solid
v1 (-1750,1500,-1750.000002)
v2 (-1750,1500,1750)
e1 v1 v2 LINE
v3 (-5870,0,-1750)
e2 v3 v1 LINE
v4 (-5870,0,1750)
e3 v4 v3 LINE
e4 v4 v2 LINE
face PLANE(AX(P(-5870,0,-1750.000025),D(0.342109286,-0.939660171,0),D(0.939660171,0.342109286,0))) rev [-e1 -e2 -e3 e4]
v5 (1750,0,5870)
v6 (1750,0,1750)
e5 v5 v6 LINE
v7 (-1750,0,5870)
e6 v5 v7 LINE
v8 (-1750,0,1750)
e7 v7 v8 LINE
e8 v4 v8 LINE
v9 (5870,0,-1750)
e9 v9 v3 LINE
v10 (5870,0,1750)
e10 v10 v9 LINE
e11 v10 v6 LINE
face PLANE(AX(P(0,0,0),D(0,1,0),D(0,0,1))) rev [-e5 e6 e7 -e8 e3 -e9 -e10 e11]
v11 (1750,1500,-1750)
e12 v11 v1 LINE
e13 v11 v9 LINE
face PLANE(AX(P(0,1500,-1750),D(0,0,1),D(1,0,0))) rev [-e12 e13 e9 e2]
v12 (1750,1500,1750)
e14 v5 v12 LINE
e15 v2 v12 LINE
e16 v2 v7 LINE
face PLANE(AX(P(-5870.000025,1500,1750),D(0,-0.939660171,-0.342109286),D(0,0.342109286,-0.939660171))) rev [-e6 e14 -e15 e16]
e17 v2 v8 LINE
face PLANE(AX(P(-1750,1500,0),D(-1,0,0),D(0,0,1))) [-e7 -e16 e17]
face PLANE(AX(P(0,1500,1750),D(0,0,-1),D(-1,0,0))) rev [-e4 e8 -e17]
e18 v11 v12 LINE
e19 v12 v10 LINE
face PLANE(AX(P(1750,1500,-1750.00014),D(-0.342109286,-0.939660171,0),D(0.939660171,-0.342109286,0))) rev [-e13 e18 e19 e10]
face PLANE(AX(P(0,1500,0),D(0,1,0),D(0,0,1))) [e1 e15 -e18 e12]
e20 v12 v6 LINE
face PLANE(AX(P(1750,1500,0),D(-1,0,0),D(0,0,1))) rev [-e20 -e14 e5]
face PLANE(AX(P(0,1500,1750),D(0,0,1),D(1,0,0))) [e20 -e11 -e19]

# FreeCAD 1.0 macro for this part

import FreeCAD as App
import Part
import Sketcher
from FreeCAD import Vector


def add_polygon(sketch, points):
    """Adds a closed chain of lines whose ends are joined by coincident constraints."""
    first, n = sketch.GeometryCount, len(points)
    for a, b in zip(points, points[1:] + points[:1]):
        sketch.addGeometry(Part.LineSegment(App.Vector(*a, 0), App.Vector(*b, 0)), False)
    for i in range(n):
        sketch.addConstraint(Sketcher.Constraint("Coincident", first + i, 2, first + (i + 1) % n, 1))

doc = App.newDocument("Part")
body = doc.addObject("PartDesign::Body", "Body")

# Sketch on XZ plane
sketch1 = doc.addObject("Sketcher::SketchObject", "Sketch")
body.addObject(sketch1)
sketch1.AttachmentSupport = (doc.XZ_Plane, [""])
sketch1.MapMode = "FlatFace"
add_polygon(sketch1, [(-1750, -1750), (-1750, 1750), (1750, 1750), (1750, -1750)])  # lines 0-3
sketch1.addConstraint([
    Sketcher.Constraint("Vertical", 0),
    Sketcher.Constraint("Horizontal", 1),
    Sketcher.Constraint("Vertical", 2),
    Sketcher.Constraint("Horizontal", 3),
    Sketcher.Constraint("Symmetric", 0, 2, 2, 2, -1, 1),
    Sketcher.Constraint("Equal", 3, 0),
    Sketcher.Constraint("DistanceX", 1, 1, 1, 2, 3500.0),
])
pad1 = doc.addObject("PartDesign::Pad", "Pad")
body.addObject(pad1)
pad1.Profile = sketch1
pad1.Length = 1500
pad1.Reversed = True

# Sketch on XZ plane
sketch2 = doc.addObject("Sketcher::SketchObject", "Sketch001")
body.addObject(sketch2)
sketch2.AttachmentSupport = (doc.XZ_Plane, [""])
sketch2.MapMode = "FlatFace"
add_polygon(sketch2, [(-1750, 1750), (-1750, 5870), (1750, 5870), (1750, 1750)])  # lines 0-3
add_polygon(sketch2, [(-5870, -1750), (-5870, 1750), (-1750, 1750), (-1750, -1750)])  # lines 4-7
add_polygon(sketch2, [(1750, -1750), (1750, 1750), (5870, 1750), (5870, -1750)])  # lines 8-11
sketch2.addConstraint([
    Sketcher.Constraint("Vertical", 0),
    Sketcher.Constraint("Horizontal", 1),
    Sketcher.Constraint("Vertical", 2),
    Sketcher.Constraint("Horizontal", 3),
    Sketcher.Constraint("Vertical", 4),
    Sketcher.Constraint("Horizontal", 5),
    Sketcher.Constraint("Vertical", 6),
    Sketcher.Constraint("Horizontal", 7),
    Sketcher.Constraint("Vertical", 8),
    Sketcher.Constraint("Horizontal", 9),
    Sketcher.Constraint("Vertical", 10),
    Sketcher.Constraint("Horizontal", 11),
    Sketcher.Constraint("Coincident", 5, 2, 3, 2),
    Sketcher.Constraint("Coincident", 8, 2, 2, 2),
    Sketcher.Constraint("Symmetric", 2, 2, 6, 2, -1, 1),
    Sketcher.Constraint("Symmetric", 4, 2, 10, 2, -1, 1),
    Sketcher.Constraint("Equal", 11, 0),
    Sketcher.Constraint("Equal", 3, 4),
    Sketcher.Constraint("DistanceX", 1, 1, 1, 2, 3500.0),
    Sketcher.Constraint("DistanceX", 5, 1, 5, 2, 4120.0),
])
pad2 = doc.addObject("PartDesign::Pad", "Pad001")
body.addObject(pad2)
pad2.Profile = sketch2
pad2.Length = 1500
pad2.Reversed = True

# Sketch on YZ plane
sketch3 = doc.addObject("Sketcher::SketchObject", "Sketch002")
body.addObject(sketch3)
sketch3.AttachmentSupport = (doc.YZ_Plane, [""])
sketch3.MapMode = "FlatFace"
sketch3.AttachmentOffset = App.Placement(Vector(0, 0, 1750), App.Rotation())
add_polygon(sketch3, [(0, 5870), (1500, 1750), (1500, 5870)])  # lines 0-2
sketch3.addConstraint([
    Sketcher.Constraint("Vertical", 1),
    Sketcher.Constraint("Horizontal", 2),
    Sketcher.Constraint("PointOnObject", 2, 2, -2),
    Sketcher.Constraint("DistanceX", 2, 2, 2, 1, 1500.0),
    Sketcher.Constraint("DistanceY", 1, 1, 1, 2, 4120.0),
    Sketcher.Constraint("DistanceY", -1, 1, 0, 2, 1750.0),
])
pocket1 = doc.addObject("PartDesign::Pocket", "Pocket")
body.addObject(pocket1)
pocket1.Profile = sketch3
pocket1.Type = "ThroughAll"

# Sketch on XY plane
sketch4 = doc.addObject("Sketcher::SketchObject", "Sketch003")
body.addObject(sketch4)
sketch4.AttachmentSupport = (doc.XY_Plane, [""])
sketch4.MapMode = "FlatFace"
sketch4.AttachmentOffset = App.Placement(Vector(0, 0, 1750), App.Rotation())
add_polygon(sketch4, [(-5870, 0), (-1750, 1500), (-5870, 1500)])  # lines 0-2
sketch4.addConstraint([
    Sketcher.Constraint("Horizontal", 1),
    Sketcher.Constraint("Vertical", 2),
    Sketcher.Constraint("PointOnObject", 2, 2, -1),
    Sketcher.Constraint("DistanceX", 1, 2, 1, 1, 4120.0),
    Sketcher.Constraint("DistanceY", 2, 2, 2, 1, 1500.0),
    Sketcher.Constraint("DistanceX", 0, 2, -1, 1, 1750.0),
])
pocket2 = doc.addObject("PartDesign::Pocket", "Pocket001")
body.addObject(pocket2)
pocket2.Profile = sketch4
pocket2.Type = "ThroughAll"

# Sketch on XY plane
sketch5 = doc.addObject("Sketcher::SketchObject", "Sketch004")
body.addObject(sketch5)
sketch5.AttachmentSupport = (doc.XY_Plane, [""])
sketch5.MapMode = "FlatFace"
sketch5.AttachmentOffset = App.Placement(Vector(0, 0, 1750), App.Rotation())
add_polygon(sketch5, [(1750, 1500), (5870, 0), (5870, 1500)])  # lines 0-2
sketch5.addConstraint([
    Sketcher.Constraint("Vertical", 1),
    Sketcher.Constraint("Horizontal", 2),
    Sketcher.Constraint("PointOnObject", 0, 2, -1),
    Sketcher.Constraint("DistanceX", 2, 2, 2, 1, 4120.0),
    Sketcher.Constraint("DistanceY", 1, 1, 1, 2, 1500.0),
    Sketcher.Constraint("DistanceX", -1, 1, 0, 2, 5870.0),
])
pocket3 = doc.addObject("PartDesign::Pocket", "Pocket002")
body.addObject(pocket3)
pocket3.Profile = sketch5
pocket3.Type = "ThroughAll"

doc.recompute()
